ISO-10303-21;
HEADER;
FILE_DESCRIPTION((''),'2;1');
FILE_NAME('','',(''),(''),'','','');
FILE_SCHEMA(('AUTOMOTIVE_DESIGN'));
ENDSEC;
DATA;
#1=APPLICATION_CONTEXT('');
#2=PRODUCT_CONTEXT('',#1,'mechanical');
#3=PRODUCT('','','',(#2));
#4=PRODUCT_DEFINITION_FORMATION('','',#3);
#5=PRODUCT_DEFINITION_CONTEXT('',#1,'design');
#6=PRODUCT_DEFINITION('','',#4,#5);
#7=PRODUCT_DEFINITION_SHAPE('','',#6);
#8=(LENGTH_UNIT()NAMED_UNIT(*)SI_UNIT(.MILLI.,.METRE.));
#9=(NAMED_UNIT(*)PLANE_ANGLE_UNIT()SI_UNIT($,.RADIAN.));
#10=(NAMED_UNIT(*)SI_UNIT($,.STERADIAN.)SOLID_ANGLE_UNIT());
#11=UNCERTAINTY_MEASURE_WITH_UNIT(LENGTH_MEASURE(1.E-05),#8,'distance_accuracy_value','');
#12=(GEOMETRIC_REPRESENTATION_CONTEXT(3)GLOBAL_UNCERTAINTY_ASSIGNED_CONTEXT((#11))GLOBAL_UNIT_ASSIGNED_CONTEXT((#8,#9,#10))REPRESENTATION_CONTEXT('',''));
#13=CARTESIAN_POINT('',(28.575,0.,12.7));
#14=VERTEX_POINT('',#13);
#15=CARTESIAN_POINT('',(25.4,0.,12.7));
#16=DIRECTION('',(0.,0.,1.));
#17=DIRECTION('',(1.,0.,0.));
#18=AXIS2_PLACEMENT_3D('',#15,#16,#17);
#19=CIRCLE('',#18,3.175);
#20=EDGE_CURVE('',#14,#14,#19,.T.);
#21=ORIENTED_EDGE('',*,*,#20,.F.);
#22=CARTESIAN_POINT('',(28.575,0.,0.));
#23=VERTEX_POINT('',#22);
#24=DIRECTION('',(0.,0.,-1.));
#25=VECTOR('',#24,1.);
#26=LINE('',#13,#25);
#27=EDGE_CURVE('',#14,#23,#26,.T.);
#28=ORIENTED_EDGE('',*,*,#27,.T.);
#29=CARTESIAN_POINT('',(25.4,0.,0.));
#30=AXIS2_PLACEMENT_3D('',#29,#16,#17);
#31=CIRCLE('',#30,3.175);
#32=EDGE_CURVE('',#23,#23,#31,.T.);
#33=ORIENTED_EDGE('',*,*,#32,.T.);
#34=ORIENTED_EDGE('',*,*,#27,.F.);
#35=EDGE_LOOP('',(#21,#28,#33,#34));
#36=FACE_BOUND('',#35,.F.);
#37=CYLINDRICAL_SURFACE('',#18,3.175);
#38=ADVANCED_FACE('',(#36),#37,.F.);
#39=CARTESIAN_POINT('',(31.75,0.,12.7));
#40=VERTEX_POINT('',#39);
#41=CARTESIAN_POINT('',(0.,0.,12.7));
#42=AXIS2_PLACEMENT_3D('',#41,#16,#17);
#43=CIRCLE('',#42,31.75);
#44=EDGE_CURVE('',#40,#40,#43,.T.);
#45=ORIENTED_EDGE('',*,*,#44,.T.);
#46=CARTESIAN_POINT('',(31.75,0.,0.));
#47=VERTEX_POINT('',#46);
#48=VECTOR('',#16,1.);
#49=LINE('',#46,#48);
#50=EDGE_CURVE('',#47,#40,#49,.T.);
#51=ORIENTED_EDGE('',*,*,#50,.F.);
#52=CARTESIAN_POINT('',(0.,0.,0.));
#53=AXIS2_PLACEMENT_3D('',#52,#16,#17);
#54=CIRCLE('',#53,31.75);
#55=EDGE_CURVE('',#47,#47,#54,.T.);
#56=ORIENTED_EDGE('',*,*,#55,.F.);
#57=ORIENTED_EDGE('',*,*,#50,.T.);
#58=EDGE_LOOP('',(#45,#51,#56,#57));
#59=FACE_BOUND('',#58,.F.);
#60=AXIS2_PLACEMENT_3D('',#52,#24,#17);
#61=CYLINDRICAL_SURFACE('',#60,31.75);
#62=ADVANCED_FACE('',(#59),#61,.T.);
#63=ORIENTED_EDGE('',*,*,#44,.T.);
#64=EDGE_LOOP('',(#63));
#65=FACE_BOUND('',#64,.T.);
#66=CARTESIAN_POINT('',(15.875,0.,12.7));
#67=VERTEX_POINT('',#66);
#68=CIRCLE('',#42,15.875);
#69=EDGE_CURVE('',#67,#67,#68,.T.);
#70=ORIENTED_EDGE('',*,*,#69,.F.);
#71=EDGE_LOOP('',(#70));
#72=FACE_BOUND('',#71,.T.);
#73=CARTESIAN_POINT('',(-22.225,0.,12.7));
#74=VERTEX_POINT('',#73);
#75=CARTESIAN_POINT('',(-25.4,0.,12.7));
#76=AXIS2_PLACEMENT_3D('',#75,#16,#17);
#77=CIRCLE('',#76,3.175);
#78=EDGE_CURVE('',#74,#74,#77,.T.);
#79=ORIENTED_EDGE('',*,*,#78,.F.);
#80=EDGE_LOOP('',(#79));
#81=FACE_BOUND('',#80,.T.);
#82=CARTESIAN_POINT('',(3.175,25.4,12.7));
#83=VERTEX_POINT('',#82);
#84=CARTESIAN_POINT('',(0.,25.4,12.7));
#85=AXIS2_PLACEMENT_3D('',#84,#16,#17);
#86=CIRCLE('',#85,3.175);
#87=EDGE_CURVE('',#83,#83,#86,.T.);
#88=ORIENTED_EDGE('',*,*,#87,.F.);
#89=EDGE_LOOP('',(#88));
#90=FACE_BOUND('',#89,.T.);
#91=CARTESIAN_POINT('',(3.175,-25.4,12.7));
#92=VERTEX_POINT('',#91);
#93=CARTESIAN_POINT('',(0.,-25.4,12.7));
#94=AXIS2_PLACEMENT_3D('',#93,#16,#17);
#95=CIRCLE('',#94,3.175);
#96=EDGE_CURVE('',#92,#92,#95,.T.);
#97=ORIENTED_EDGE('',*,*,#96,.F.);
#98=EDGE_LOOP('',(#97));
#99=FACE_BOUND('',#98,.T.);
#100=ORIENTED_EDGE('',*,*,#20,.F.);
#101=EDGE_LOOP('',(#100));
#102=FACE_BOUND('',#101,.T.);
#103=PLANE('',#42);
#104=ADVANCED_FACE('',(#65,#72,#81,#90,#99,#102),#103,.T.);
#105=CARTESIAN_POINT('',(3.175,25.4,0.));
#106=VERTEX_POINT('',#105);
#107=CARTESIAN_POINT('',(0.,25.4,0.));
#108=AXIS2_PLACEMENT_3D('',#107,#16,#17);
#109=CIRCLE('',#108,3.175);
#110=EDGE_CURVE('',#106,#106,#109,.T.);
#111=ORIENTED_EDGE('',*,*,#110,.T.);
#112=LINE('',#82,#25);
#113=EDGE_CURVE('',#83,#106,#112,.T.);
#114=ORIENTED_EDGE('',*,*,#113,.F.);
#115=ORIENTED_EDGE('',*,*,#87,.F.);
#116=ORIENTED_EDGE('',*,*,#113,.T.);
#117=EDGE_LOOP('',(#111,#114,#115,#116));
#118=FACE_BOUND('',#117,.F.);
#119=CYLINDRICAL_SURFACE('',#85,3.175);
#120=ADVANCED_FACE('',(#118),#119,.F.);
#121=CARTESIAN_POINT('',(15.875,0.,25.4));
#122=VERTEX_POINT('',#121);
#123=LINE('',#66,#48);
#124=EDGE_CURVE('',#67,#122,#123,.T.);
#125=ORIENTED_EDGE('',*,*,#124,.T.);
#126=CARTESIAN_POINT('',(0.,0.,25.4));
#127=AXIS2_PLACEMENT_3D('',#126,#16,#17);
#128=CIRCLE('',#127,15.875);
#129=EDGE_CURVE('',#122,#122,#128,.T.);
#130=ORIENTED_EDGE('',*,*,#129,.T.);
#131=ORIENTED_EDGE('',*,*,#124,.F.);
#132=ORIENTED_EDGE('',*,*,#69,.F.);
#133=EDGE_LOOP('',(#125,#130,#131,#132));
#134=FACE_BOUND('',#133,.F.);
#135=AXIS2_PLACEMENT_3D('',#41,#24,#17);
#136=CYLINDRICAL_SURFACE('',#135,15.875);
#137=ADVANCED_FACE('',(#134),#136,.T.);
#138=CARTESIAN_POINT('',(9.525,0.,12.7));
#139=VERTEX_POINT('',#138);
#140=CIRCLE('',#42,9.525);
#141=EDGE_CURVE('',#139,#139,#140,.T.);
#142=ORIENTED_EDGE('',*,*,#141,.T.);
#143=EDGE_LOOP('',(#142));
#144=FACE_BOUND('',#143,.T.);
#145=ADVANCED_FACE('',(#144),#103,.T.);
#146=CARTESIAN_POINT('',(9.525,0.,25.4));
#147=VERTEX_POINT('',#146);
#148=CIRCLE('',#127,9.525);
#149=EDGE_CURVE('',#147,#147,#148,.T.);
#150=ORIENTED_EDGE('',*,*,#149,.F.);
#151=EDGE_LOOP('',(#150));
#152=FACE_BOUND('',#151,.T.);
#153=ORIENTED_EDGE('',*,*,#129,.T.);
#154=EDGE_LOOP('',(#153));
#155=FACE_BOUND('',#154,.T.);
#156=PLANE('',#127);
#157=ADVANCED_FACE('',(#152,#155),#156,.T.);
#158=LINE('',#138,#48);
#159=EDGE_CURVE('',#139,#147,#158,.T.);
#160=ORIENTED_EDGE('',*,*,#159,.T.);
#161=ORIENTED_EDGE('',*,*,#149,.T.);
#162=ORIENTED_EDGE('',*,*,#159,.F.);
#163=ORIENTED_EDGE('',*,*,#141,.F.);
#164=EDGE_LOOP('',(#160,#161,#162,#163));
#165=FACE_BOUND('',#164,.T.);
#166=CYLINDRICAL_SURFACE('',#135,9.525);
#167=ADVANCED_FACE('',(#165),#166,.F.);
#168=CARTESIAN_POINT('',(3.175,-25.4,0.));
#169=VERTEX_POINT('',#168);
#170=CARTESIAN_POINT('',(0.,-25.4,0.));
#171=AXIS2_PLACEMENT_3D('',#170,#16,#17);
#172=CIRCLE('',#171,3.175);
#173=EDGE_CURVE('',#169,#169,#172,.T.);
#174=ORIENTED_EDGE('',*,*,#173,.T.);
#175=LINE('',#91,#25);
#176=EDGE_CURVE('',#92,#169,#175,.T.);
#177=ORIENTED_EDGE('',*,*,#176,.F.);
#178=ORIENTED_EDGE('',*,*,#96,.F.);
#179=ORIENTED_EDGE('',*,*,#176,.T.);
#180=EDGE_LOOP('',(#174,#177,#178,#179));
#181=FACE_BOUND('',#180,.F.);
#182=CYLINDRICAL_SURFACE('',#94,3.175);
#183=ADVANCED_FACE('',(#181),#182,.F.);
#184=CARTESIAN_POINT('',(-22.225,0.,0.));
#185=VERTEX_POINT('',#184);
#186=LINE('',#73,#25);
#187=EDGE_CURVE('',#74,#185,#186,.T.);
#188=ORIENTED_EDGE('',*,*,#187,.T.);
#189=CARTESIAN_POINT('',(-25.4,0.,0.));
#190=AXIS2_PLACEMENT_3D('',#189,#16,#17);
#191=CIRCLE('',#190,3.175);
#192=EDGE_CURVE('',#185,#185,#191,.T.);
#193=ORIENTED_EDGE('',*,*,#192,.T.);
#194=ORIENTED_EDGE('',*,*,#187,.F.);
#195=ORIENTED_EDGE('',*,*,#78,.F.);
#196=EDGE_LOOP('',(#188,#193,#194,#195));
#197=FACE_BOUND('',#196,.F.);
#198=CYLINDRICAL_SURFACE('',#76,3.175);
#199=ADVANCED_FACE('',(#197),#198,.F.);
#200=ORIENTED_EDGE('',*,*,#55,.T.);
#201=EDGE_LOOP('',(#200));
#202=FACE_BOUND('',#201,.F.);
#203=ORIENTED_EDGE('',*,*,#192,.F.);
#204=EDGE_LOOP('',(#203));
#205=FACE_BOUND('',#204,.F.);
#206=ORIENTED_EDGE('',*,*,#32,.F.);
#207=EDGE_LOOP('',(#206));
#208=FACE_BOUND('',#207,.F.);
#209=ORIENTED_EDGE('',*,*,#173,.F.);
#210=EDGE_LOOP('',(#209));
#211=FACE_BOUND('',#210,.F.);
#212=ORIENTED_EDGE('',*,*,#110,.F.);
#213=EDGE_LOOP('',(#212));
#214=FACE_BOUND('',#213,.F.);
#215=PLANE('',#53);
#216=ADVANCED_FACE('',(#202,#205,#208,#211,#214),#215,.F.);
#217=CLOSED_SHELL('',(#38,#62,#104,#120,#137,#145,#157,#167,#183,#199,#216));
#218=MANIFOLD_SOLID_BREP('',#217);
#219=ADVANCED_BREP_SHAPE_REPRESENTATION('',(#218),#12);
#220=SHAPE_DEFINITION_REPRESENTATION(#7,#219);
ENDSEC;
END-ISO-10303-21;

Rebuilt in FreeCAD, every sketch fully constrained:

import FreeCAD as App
import Part
import Sketcher
from FreeCAD import Vector
Q = App.Units.Quantity

doc = App.newDocument("Part")
params = doc.addObject("Spreadsheet::Sheet", "Params")
for row, (alias, value) in enumerate([
    ("sketch1_diameter", "2.5 in"),
    ("pad1_length", "0.5 in"),
    ("sketch2_diameter", "0.25 in"),
    ("sketch3_diameter", "1.25 in"),
    ("sketch3_diameter2", "0.75 in"),
    ("pad2_length", "0.5 in"),
], start=1):
    params.set(f"A{row}", alias)
    params.set(f"B{row}", "=" + value)
    params.setAlias(f"B{row}", alias)

body = doc.addObject("PartDesign::Body", "Body")

# Sketch on XY plane
sketch1 = body.newObject("Sketcher::SketchObject", "Sketch")
sketch1.AttachmentSupport = (doc.getObject("XY_Plane"), [""])
sketch1.MapMode = "FlatFace"
sketch1.addGeometry(Part.Circle(Vector(0, 0, 0), Vector(0, 0, 1), 31.75), False)
sketch1.addConstraint(Sketcher.Constraint("Coincident", 0, 3, -1, 1))
sketch1.addConstraint(Sketcher.Constraint("Diameter", 0, Q("2.5 in")))
sketch1.setExpression("Constraints[1]", "Params.sketch1_diameter")
pad1 = body.newObject("PartDesign::Pad", "Pad")
pad1.Profile = sketch1
pad1.setExpression("Length", "Params.pad1_length")

# Sketch on XY plane
sketch2 = body.newObject("Sketcher::SketchObject", "Sketch001")
sketch2.AttachmentSupport = (doc.getObject("XY_Plane"), [""])
sketch2.MapMode = "FlatFace"
sketch2.AttachmentOffset = App.Placement(Vector(0, 0, 0.5 * 25.4), App.Rotation())
sketch2.addGeometry(Part.Circle(Vector(-25.4, 0, 0), Vector(0, 0, 1), 3.175), False)
sketch2.addGeometry(Part.Circle(Vector(0, -25.4, 0), Vector(0, 0, 1), 3.175), False)
sketch2.addGeometry(Part.Circle(Vector(25.4, 0, 0), Vector(0, 0, 1), 3.175), False)
sketch2.addGeometry(Part.Circle(Vector(0, 25.4, 0), Vector(0, 0, 1), 3.175), False)
sketch2.addConstraint(Sketcher.Constraint("Equal", 0, 1))
sketch2.addConstraint(Sketcher.Constraint("Equal", 1, 2))
sketch2.addConstraint(Sketcher.Constraint("Equal", 2, 3))
sketch2.addConstraint(Sketcher.Constraint("Symmetric", 0, 3, 2, 3, -1, 1))
sketch2.addConstraint(Sketcher.Constraint("Symmetric", 1, 3, 3, 3, -1, 1))
sketch2.addConstraint(Sketcher.Constraint("PointOnObject", 0, 3, -1))
sketch2.addConstraint(Sketcher.Constraint("PointOnObject", 1, 3, -2))
sketch2.addConstraint(Sketcher.Constraint("Diameter", 0, Q("0.25 in")))
sketch2.addConstraint(Sketcher.Constraint("DistanceX", 0, 3, -1, 1, Q("1 in")))
sketch2.addConstraint(Sketcher.Constraint("DistanceY", 1, 3, -1, 1, Q("1 in")))
sketch2.setExpression("Constraints[7]", "Params.sketch2_diameter")
pocket1 = body.newObject("PartDesign::Pocket", "Pocket")
pocket1.Profile = sketch2
pocket1.Type = "ThroughAll"

# Sketch on XY plane
sketch3 = body.newObject("Sketcher::SketchObject", "Sketch002")
sketch3.AttachmentSupport = (doc.getObject("XY_Plane"), [""])
sketch3.MapMode = "FlatFace"
sketch3.AttachmentOffset = App.Placement(Vector(0, 0, 0.5 * 25.4), App.Rotation())
sketch3.addGeometry(Part.Circle(Vector(0, 0, 0), Vector(0, 0, 1), 15.875), False)
sketch3.addGeometry(Part.Circle(Vector(0, 0, 0), Vector(0, 0, 1), 9.525), False)
sketch3.addConstraint(Sketcher.Constraint("Coincident", 0, 3, -1, 1))
sketch3.addConstraint(Sketcher.Constraint("Coincident", 1, 3, -1, 1))
sketch3.addConstraint(Sketcher.Constraint("Diameter", 0, Q("1.25 in")))
sketch3.addConstraint(Sketcher.Constraint("Diameter", 1, Q("0.75 in")))
sketch3.setExpression("Constraints[2]", "Params.sketch3_diameter")
sketch3.setExpression("Constraints[3]", "Params.sketch3_diameter2")
pad2 = body.newObject("PartDesign::Pad", "Pad001")
pad2.Profile = sketch3
pad2.setExpression("Length", "Params.pad2_length")

doc.recompute()
